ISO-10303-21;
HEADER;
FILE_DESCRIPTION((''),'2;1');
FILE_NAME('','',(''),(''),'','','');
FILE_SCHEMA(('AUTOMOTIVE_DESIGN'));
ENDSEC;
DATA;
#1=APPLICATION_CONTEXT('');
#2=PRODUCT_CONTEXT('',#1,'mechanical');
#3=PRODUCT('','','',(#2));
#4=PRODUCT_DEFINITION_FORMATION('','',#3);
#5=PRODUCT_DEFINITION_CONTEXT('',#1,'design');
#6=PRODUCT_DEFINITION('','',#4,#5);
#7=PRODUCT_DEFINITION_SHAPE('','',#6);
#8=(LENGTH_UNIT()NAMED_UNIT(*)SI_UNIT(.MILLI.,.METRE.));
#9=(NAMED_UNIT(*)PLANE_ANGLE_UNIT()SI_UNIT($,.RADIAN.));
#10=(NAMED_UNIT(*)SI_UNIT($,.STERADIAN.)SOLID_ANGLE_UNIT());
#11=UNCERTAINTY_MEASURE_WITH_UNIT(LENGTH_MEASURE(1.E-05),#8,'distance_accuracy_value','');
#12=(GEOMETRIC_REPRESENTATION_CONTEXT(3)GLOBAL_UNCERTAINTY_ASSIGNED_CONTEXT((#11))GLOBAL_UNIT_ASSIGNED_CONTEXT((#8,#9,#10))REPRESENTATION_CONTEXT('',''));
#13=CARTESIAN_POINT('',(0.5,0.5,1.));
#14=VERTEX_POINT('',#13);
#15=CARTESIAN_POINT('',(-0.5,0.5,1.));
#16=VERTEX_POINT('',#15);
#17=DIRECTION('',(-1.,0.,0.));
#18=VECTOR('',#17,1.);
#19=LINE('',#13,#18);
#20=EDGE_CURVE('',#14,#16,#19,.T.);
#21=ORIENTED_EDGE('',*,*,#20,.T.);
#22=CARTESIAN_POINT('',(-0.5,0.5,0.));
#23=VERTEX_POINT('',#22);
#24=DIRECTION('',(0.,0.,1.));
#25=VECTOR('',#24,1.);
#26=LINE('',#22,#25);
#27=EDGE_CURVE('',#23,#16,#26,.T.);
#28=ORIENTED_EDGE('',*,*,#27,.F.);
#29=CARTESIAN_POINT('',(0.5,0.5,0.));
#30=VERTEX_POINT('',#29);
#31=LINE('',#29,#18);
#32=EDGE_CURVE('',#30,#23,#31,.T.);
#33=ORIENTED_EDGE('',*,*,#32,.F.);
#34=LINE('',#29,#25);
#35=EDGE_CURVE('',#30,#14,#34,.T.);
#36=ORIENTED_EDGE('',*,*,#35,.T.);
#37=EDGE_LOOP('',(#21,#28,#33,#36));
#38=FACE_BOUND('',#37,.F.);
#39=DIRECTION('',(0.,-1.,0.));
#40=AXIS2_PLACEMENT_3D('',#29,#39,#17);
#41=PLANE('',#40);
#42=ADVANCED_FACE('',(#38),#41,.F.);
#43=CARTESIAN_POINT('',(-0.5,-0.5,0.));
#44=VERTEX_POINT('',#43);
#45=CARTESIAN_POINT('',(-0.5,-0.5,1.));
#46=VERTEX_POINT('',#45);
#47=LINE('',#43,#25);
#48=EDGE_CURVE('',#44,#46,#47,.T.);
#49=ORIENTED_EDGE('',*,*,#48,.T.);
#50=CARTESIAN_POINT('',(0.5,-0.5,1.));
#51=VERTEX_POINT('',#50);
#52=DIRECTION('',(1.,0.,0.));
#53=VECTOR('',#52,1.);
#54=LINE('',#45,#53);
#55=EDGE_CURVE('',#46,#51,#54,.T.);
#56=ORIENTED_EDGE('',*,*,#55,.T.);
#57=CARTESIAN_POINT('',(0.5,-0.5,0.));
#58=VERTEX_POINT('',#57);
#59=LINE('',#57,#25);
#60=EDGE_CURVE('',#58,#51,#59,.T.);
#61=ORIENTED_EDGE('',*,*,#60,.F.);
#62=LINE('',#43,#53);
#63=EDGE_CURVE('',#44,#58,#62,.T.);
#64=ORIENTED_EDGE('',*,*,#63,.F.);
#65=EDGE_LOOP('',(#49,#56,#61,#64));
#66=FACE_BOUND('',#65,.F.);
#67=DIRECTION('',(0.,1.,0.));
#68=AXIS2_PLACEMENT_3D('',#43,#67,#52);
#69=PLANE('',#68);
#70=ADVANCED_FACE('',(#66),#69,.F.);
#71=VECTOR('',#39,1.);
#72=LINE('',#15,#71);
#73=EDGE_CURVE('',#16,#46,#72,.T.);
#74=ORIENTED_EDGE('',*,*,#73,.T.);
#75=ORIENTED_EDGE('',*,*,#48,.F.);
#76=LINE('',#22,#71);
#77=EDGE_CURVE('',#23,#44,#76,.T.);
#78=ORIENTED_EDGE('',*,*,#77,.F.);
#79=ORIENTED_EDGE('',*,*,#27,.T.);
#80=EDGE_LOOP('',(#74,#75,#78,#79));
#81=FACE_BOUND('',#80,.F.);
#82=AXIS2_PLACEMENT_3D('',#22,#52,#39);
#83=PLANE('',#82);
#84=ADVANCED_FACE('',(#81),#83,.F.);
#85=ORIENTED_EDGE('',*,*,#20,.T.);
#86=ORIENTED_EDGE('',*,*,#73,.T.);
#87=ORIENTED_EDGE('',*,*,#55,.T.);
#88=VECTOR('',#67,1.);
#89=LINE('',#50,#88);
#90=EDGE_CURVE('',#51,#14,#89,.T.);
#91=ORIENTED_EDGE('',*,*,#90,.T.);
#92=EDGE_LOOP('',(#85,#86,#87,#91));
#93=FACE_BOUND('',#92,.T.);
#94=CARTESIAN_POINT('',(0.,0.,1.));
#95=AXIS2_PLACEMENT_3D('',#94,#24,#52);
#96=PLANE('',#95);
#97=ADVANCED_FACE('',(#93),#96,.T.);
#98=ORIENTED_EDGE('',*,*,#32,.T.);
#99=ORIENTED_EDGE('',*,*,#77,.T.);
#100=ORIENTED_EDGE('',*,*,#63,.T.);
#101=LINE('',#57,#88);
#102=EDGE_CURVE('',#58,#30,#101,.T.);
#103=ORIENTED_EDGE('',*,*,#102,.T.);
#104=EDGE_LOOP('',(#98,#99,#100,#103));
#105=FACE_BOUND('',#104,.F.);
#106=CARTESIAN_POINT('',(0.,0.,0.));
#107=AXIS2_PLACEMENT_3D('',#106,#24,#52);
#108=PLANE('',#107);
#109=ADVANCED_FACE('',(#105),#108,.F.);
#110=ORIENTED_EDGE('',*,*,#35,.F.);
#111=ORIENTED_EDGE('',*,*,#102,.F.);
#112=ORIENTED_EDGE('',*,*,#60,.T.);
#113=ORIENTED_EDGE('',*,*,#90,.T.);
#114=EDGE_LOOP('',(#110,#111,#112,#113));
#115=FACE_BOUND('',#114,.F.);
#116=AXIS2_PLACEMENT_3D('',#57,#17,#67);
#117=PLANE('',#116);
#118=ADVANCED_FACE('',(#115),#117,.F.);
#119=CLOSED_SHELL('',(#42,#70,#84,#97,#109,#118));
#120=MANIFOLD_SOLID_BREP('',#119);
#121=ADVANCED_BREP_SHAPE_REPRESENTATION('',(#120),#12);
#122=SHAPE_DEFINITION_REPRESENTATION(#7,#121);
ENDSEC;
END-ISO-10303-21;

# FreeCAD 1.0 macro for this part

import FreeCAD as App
import Part
import Sketcher
from FreeCAD import Vector
Q = App.Units.Quantity

doc = App.newDocument("Part")
params = doc.addObject("Spreadsheet::Sheet", "Params")
for row, (alias, value) in enumerate([
    ("sketch1_width", "1 mm"),
    ("pad1_length", "1 mm"),
], start=1):
    params.set(f"A{row}", alias)
    params.set(f"B{row}", "=" + value)
    params.setAlias(f"B{row}", alias)

body = doc.addObject("PartDesign::Body", "Body")

# Sketch on XY plane
sketch1 = body.newObject("Sketcher::SketchObject", "Sketch")
sketch1.AttachmentSupport = (doc.getObject("XY_Plane"), [""])
sketch1.MapMode = "FlatFace"
sketch1.addGeometry([
    Part.LineSegment(Vector(-0.5, 0.5, 0), Vector(-0.5, -0.5, 0)),
    Part.LineSegment(Vector(-0.5, -0.5, 0), Vector(0.5, -0.5, 0)),
    Part.LineSegment(Vector(0.5, -0.5, 0), Vector(0.5, 0.5, 0)),
    Part.LineSegment(Vector(0.5, 0.5, 0), Vector(-0.5, 0.5, 0)),
], False)
sketch1.addConstraint([
    Sketcher.Constraint("Coincident", 0, 2, 1, 1),
    Sketcher.Constraint("Coincident", 1, 2, 2, 1),
    Sketcher.Constraint("Coincident", 2, 2, 3, 1),
    Sketcher.Constraint("Coincident", 3, 2, 0, 1),
    Sketcher.Constraint("Vertical", 0),
    Sketcher.Constraint("Horizontal", 1),
    Sketcher.Constraint("Vertical", 2),
    Sketcher.Constraint("Horizontal", 3),
    Sketcher.Constraint("Symmetric", 0, 2, 2, 2, -1, 1),
    Sketcher.Constraint("Equal", 3, 0),
    Sketcher.Constraint("DistanceX", 1, 1, 1, 2, Q("1 mm")),
])
sketch1.setExpression("Constraints[10]", "Params.sketch1_width")
pad1 = body.newObject("PartDesign::Pad", "Pad")
pad1.Profile = sketch1
pad1.setExpression("Length", "Params.pad1_length")

doc.recompute()
